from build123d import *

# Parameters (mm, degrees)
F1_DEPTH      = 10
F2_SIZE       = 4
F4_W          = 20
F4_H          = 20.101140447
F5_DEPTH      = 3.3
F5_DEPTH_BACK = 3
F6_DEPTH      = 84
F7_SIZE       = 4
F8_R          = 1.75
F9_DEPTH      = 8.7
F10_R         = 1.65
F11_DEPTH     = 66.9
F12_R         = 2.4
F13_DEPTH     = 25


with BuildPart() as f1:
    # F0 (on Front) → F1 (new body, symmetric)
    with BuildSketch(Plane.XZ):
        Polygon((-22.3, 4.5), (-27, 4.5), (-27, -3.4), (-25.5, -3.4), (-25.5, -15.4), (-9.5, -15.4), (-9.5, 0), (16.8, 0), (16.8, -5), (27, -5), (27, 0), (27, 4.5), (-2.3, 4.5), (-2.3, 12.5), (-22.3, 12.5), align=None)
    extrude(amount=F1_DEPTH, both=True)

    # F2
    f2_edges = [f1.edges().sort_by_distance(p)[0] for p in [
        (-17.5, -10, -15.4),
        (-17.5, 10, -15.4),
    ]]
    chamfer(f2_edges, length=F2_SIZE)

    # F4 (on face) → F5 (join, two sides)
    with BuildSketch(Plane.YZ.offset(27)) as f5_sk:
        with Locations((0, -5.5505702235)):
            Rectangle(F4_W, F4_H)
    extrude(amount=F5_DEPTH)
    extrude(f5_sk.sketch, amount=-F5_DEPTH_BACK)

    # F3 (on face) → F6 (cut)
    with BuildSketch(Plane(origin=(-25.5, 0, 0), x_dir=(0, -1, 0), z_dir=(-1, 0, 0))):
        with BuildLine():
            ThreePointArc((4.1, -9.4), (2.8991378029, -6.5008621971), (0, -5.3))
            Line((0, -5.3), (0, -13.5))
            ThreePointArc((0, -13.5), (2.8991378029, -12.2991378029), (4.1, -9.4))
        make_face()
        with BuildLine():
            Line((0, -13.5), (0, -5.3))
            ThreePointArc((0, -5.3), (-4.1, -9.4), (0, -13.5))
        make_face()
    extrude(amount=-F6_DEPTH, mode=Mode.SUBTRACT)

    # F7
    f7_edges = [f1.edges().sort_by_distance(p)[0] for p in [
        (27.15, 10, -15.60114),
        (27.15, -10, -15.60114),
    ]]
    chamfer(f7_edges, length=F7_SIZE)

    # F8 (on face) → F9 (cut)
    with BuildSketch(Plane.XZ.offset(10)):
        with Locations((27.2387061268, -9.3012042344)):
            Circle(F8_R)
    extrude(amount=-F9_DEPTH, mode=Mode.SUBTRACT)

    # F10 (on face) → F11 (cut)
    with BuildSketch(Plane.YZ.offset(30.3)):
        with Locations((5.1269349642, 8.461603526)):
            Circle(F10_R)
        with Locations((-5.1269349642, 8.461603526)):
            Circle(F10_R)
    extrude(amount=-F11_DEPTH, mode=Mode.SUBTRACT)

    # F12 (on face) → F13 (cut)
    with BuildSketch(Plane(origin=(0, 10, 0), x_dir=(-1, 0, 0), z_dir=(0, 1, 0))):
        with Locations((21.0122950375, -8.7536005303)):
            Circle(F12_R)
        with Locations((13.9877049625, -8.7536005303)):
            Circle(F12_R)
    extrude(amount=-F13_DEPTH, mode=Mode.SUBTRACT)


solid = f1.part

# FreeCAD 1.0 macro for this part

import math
import FreeCAD as App
import Part
import Sketcher

V = App.Vector
Q = App.Units.Quantity


def edges_at(feature, points):
    """Names of the edges that pass closest to the given points."""
    edges = feature.Shape.Edges
    near = lambda p: min(range(len(edges)), key=lambda i: edges[i].distToShape(Part.Vertex(*p))[0])
    return sorted({f"Edge{near(p) + 1}" for p in points})


def add_polygon(sketch, points):
    """Adds a closed chain of lines whose ends are joined by coincident constraints."""
    first, n = sketch.GeometryCount, len(points)
    for a, b in zip(points, points[1:] + points[:1]):
        sketch.addGeometry(Part.LineSegment(App.Vector(*a, 0), App.Vector(*b, 0)), False)
    for i in range(n):
        sketch.addConstraint(Sketcher.Constraint("Coincident", first + i, 2, first + (i + 1) % n, 1))

doc = App.newDocument("Part")
params = doc.addObject("Spreadsheet::Sheet", "Params")
for row, (alias, value) in enumerate([
    ("sketch1_width", "16 mm"),
    ("sketch1_width2", "20 mm"),
    ("sketch1_height", "12 mm"),
    ("sketch1_height2", "5 mm"),
    ("sketch1_height3", "8 mm"),
    ("pad1_length", "20 mm"),
    ("chamfer_size", "4 mm"),
    ("sketch2_width", "20 mm"),
    ("pad2_length", "3.3 mm"),
    ("pad2_length2", "3 mm"),
    ("sketch3_radius", "4.1 mm"),
    ("pocket1_length", "84 mm"),
    ("chamfer2_size", "4 mm"),
    ("sketch4_diameter", "3.5 mm"),
    ("pocket2_length", "8.7 mm"),
    ("sketch5_diameter", "3.3 mm"),
    ("pocket3_length", "66.9 mm"),
    ("sketch6_diameter", "4.8 mm"),
    ("pocket4_length", "25 mm"),
], start=1):
    params.set(f"A{row}", alias)
    params.set(f"B{row}", "=" + value)
    params.setAlias(f"B{row}", alias)

body = doc.addObject("PartDesign::Body", "Body")

# Sketch on XZ plane
sketch1 = body.newObject("Sketcher::SketchObject", "Sketch")
sketch1.AttachmentSupport = (doc.getObject("XZ_Plane"), [""])
sketch1.MapMode = "FlatFace"
add_polygon(sketch1, [(-22.3, 4.5), (-27, 4.5), (-27, -3.4), (-25.5, -3.4), (-25.5, -15.4), (-9.5, -15.4), (-9.5, 0), (16.8, 0), (16.8, -5), (27, -5), (27, 4.5), (-2.3, 4.5), (-2.3, 12.5), (-22.3, 12.5)])  # lines 0-13
sketch1.addConstraint(Sketcher.Constraint("Horizontal", 0))
sketch1.addConstraint(Sketcher.Constraint("Vertical", 1))
sketch1.addConstraint(Sketcher.Constraint("Horizontal", 2))
sketch1.addConstraint(Sketcher.Constraint("Vertical", 3))
sketch1.addConstraint(Sketcher.Constraint("Horizontal", 4))
sketch1.addConstraint(Sketcher.Constraint("Vertical", 5))
sketch1.addConstraint(Sketcher.Constraint("Horizontal", 6))
sketch1.addConstraint(Sketcher.Constraint("Vertical", 7))
sketch1.addConstraint(Sketcher.Constraint("Horizontal", 8))
sketch1.addConstraint(Sketcher.Constraint("Vertical", 9))
sketch1.addConstraint(Sketcher.Constraint("Horizontal", 10))
sketch1.addConstraint(Sketcher.Constraint("Vertical", 11))
sketch1.addConstraint(Sketcher.Constraint("Horizontal", 12))
sketch1.addConstraint(Sketcher.Constraint("Vertical", 13))
sketch1.addConstraint(Sketcher.Constraint("Symmetric", 0, 2, 9, 2, -2))
sketch1.addConstraint(Sketcher.Constraint("PointOnObject", 5, 2, -1))
sketch1.addConstraint(Sketcher.Constraint("DistanceX", 4, 1, 4, 2, Q("16 mm")))
sketch1.addConstraint(Sketcher.Constraint("DistanceX", 12, 2, 12, 1, Q("20 mm")))
sketch1.addConstraint(Sketcher.Constraint("DistanceY", 3, 2, 3, 1, Q("12 mm")))
sketch1.addConstraint(Sketcher.Constraint("DistanceY", 7, 2, 7, 1, Q("5 mm")))
sketch1.addConstraint(Sketcher.Constraint("DistanceY", 11, 1, 11, 2, Q("8 mm")))
sketch1.addConstraint(Sketcher.Constraint("DistanceX", 0, 2, 0, 1, Q("4.7 mm")))
sketch1.addConstraint(Sketcher.Constraint("DistanceX", 2, 1, 2, 2, Q("1.5 mm")))
sketch1.addConstraint(Sketcher.Constraint("DistanceX", 6, 1, 6, 2, Q("26.3 mm")))
sketch1.addConstraint(Sketcher.Constraint("DistanceX", 8, 1, 8, 2, Q("10.2 mm")))
sketch1.addConstraint(Sketcher.Constraint("DistanceY", 1, 2, 1, 1, Q("7.9 mm")))
sketch1.addConstraint(Sketcher.Constraint("DistanceY", 5, 1, 5, 2, Q("15.4 mm")))
sketch1.setExpression("Constraints[30]", "Params.sketch1_width")
sketch1.setExpression("Constraints[31]", "Params.sketch1_width2")
sketch1.setExpression("Constraints[32]", "Params.sketch1_height")
sketch1.setExpression("Constraints[33]", "Params.sketch1_height2")
sketch1.setExpression("Constraints[34]", "Params.sketch1_height3")
pad1 = body.newObject("PartDesign::Pad", "Pad")
pad1.Profile = sketch1
pad1.setExpression("Length", "Params.pad1_length")
pad1.Midplane = True
doc.recompute()

chamfer = body.newObject("PartDesign::Chamfer", "Chamfer")
chamfer.Base = (pad1, edges_at(pad1, [(-17.5, -10, -15.4), (-17.5, 10, -15.4)]))
chamfer.setExpression("Size", "Params.chamfer_size")

# Sketch on YZ plane
sketch2 = body.newObject("Sketcher::SketchObject", "Sketch001")
sketch2.AttachmentSupport = (doc.getObject("YZ_Plane"), [""])
sketch2.MapMode = "FlatFace"
sketch2.AttachmentOffset = App.Placement(V(0, 0, 27), App.Rotation())
add_polygon(sketch2, [(-10, 4), (-10, -16), (10, -16), (10, 4)])  # lines 0-3
sketch2.addConstraint(Sketcher.Constraint("Vertical", 0))
sketch2.addConstraint(Sketcher.Constraint("Horizontal", 1))
sketch2.addConstraint(Sketcher.Constraint("Vertical", 2))
sketch2.addConstraint(Sketcher.Constraint("Horizontal", 3))
sketch2.addConstraint(Sketcher.Constraint("DistanceX", 1, 1, 1, 2, Q("20 mm")))
sketch2.addConstraint(Sketcher.Constraint("DistanceX", 0, 2, -1, 1, Q("10 mm")))
sketch2.addConstraint(Sketcher.Constraint("DistanceY", -1, 1, 2, 2, Q("4.5 mm")))
sketch2.addConstraint(Sketcher.Constraint("DistanceY", 0, 2, 0, 1, Q("20.10114 mm")))
sketch2.setExpression("Constraints[8]", "Params.sketch2_width")
pad2 = body.newObject("PartDesign::Pad", "Pad001")
pad2.Profile = sketch2
pad2.Type = "TwoLengths"
pad2.setExpression("Length", "Params.pad2_length")
pad2.setExpression("Length2", "Params.pad2_length2")

# Sketch on YZ plane
sketch3 = body.newObject("Sketcher::SketchObject", "Sketch002")
sketch3.AttachmentSupport = (doc.getObject("YZ_Plane"), [""])
sketch3.MapMode = "FlatFace"
sketch3.AttachmentOffset = App.Placement(V(0, 0, -25.5), App.Rotation())
sketch3.addGeometry(Part.ArcOfCircle(Part.Circle(V(0, -9.4, 0), V(0, 0, 1), 4.1), math.radians(90), math.radians(180)), False)
sketch3.addGeometry(Part.ArcOfCircle(Part.Circle(V(0, -9.4, 0), V(0, 0, 1), 4.1), math.radians(-90), math.radians(90)), False)
sketch3.addGeometry(Part.ArcOfCircle(Part.Circle(V(0, -9.4, 0), V(0, 0, 1), 4.1), math.radians(180), math.radians(270)), False)
sketch3.addConstraint(Sketcher.Constraint("Tangent", 0, 1, 1, 2))
sketch3.addConstraint(Sketcher.Constraint("Tangent", 1, 1, 2, 2))
sketch3.addConstraint(Sketcher.Constraint("Tangent", 2, 1, 0, 2))
sketch3.addConstraint(Sketcher.Constraint("PointOnObject", 0, 3, -2))
sketch3.addConstraint(Sketcher.Constraint("PointOnObject", 0, 1, -2))
sketch3.addConstraint(Sketcher.Constraint("PointOnObject", 1, 1, -2))
sketch3.addConstraint(Sketcher.Constraint("Horizontal", 1, 3, 2, 1))
sketch3.addConstraint(Sketcher.Constraint("Radius", 0, Q("4.1 mm")))
sketch3.addConstraint(Sketcher.Constraint("DistanceY", 0, 3, -1, 1, Q("9.4 mm")))
sketch3.setExpression("Constraints[7]", "Params.sketch3_radius")
pocket1 = body.newObject("PartDesign::Pocket", "Pocket")
pocket1.Profile = sketch3
pocket1.setExpression("Length", "Params.pocket1_length")
pocket1.Reversed = True
doc.recompute()

chamfer2 = body.newObject("PartDesign::Chamfer", "Chamfer001")
chamfer2.Base = (pocket1, edges_at(pocket1, [(27.15, 10, -15.601), (27.15, -10, -15.601)]))
chamfer2.setExpression("Size", "Params.chamfer2_size")

# Sketch on XZ plane
sketch4 = body.newObject("Sketcher::SketchObject", "Sketch003")
sketch4.AttachmentSupport = (doc.getObject("XZ_Plane"), [""])
sketch4.MapMode = "FlatFace"
sketch4.AttachmentOffset = App.Placement(V(0, 0, 10), App.Rotation())
sketch4.addGeometry(Part.Circle(V(27.2, -9.3, 0), V(0, 0, 1), 1.8), False)
sketch4.addConstraint(Sketcher.Constraint("Diameter", 0, Q("3.5 mm")))
sketch4.addConstraint(Sketcher.Constraint("DistanceX", -1, 1, 0, 3, Q("27.238706 mm")))
sketch4.addConstraint(Sketcher.Constraint("DistanceY", 0, 3, -1, 1, Q("9.301204 mm")))
sketch4.setExpression("Constraints[0]", "Params.sketch4_diameter")
pocket2 = body.newObject("PartDesign::Pocket", "Pocket001")
pocket2.Profile = sketch4
pocket2.setExpression("Length", "Params.pocket2_length")

# Sketch on YZ plane
sketch5 = body.newObject("Sketcher::SketchObject", "Sketch004")
sketch5.AttachmentSupport = (doc.getObject("YZ_Plane"), [""])
sketch5.MapMode = "FlatFace"
sketch5.AttachmentOffset = App.Placement(V(0, 0, 30.3), App.Rotation())
sketch5.addGeometry(Part.Circle(V(5.1, 8.5, 0), V(0, 0, 1), 1.6), False)
sketch5.addGeometry(Part.Circle(V(-5.1, 8.5, 0), V(0, 0, 1), 1.6), False)
sketch5.addConstraint(Sketcher.Constraint("Equal", 0, 1))
sketch5.addConstraint(Sketcher.Constraint("Symmetric", 0, 3, 1, 3, -2))
sketch5.addConstraint(Sketcher.Constraint("Diameter", 0, Q("3.3 mm")))
sketch5.addConstraint(Sketcher.Constraint("DistanceX", 1, 3, 0, 3, Q("10.25387 mm")))
sketch5.addConstraint(Sketcher.Constraint("DistanceY", -1, 1, 0, 3, Q("8.461604 mm")))
sketch5.setExpression("Constraints[2]", "Params.sketch5_diameter")
pocket3 = body.newObject("PartDesign::Pocket", "Pocket002")
pocket3.Profile = sketch5
pocket3.setExpression("Length", "Params.pocket3_length")

# Sketch on XZ plane
sketch6 = body.newObject("Sketcher::SketchObject", "Sketch005")
sketch6.AttachmentSupport = (doc.getObject("XZ_Plane"), [""])
sketch6.MapMode = "FlatFace"
sketch6.AttachmentOffset = App.Placement(V(0, 0, -10), App.Rotation())
sketch6.addGeometry(Part.Circle(V(-21, -8.8, 0), V(0, 0, 1), 2.4), False)
sketch6.addGeometry(Part.Circle(V(-14, -8.8, 0), V(0, 0, 1), 2.4), False)
sketch6.addConstraint(Sketcher.Constraint("Equal", 0, 1))
sketch6.addConstraint(Sketcher.Constraint("Horizontal", 0, 3, 1, 3))
sketch6.addConstraint(Sketcher.Constraint("Diameter", 0, Q("4.8 mm")))
sketch6.addConstraint(Sketcher.Constraint("DistanceY", 0, 3, -1, 1, Q("8.753601 mm")))
sketch6.addConstraint(Sketcher.Constraint("DistanceX", 0, 3, 1, 3, Q("7.02459 mm")))
sketch6.addConstraint(Sketcher.Constraint("DistanceX", 0, 3, -1, 1, Q("21.012295 mm")))
sketch6.setExpression("Constraints[2]", "Params.sketch6_diameter")
pocket4 = body.newObject("PartDesign::Pocket", "Pocket003")
pocket4.Profile = sketch6
pocket4.setExpression("Length", "Params.pocket4_length")
pocket4.Reversed = True

doc.recompute()
